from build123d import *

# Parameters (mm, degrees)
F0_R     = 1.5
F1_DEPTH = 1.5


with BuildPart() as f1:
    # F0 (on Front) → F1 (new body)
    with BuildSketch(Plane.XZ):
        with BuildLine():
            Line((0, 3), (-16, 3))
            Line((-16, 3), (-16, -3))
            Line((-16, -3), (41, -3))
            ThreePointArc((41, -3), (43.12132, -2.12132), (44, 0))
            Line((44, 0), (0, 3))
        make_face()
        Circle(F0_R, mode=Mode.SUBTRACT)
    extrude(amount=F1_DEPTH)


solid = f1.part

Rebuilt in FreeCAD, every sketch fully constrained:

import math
import FreeCAD as App
import Part
import Sketcher
from FreeCAD import Vector

doc = App.newDocument("Part")
body = doc.addObject("PartDesign::Body", "Body")

sketch1 = doc.addObject("Sketcher::SketchObject", "Sketch")
body.addObject(sketch1)
sketch1.AttachmentSupport = (doc.XZ_Plane, [""])
sketch1.MapMode = "FlatFace"
sketch1.addGeometry([
    Part.LineSegment(Vector(0, 3, 0), Vector(-16, 3, 0)),
    Part.LineSegment(Vector(-16, 3, 0), Vector(-16, -3, 0)),
    Part.LineSegment(Vector(-16, -3, 0), Vector(41, -3, 0)),
    Part.ArcOfCircle(Part.Circle(Vector(41, 0, 0), Vector(0, 0, 1), 3), math.radians(-90), math.radians(0)),
    Part.LineSegment(Vector(44, 0, 0), Vector(0, 3, 0)),
    Part.Circle(Vector(0, 0, 0), Vector(0, 0, 1), 1.5),
], False)
sketch1.addConstraint([
    Sketcher.Constraint("Coincident", 0, 2, 1, 1),
    Sketcher.Constraint("Coincident", 1, 2, 2, 1),
    Sketcher.Constraint("Tangent", 2, 2, 3, 1),
    Sketcher.Constraint("Coincident", 3, 2, 4, 1),
    Sketcher.Constraint("Coincident", 4, 2, 0, 1),
    Sketcher.Constraint("Horizontal", 0),
    Sketcher.Constraint("Vertical", 1),
    Sketcher.Constraint("Horizontal", 2),
    Sketcher.Constraint("Coincident", 5, 3, -1, 1),
    Sketcher.Constraint("PointOnObject", 3, 3, -1),
    Sketcher.Constraint("PointOnObject", 3, 2, -1),
    Sketcher.Constraint("PointOnObject", 4, 2, -2),
    Sketcher.Constraint("Diameter", 5, 3.0),
    Sketcher.Constraint("Radius", 3, 3.000001),
    Sketcher.Constraint("DistanceX", 0, 2, 0, 1, 16.0),
    Sketcher.Constraint("DistanceX", 2, 1, 2, 2, 57.0),
    Sketcher.Constraint("DistanceY", 1, 2, 1, 1, 6.0),
])
pad1 = doc.addObject("PartDesign::Pad", "Pad")
body.addObject(pad1)
pad1.Profile = sketch1
pad1.Length = 1.5

doc.recompute()
